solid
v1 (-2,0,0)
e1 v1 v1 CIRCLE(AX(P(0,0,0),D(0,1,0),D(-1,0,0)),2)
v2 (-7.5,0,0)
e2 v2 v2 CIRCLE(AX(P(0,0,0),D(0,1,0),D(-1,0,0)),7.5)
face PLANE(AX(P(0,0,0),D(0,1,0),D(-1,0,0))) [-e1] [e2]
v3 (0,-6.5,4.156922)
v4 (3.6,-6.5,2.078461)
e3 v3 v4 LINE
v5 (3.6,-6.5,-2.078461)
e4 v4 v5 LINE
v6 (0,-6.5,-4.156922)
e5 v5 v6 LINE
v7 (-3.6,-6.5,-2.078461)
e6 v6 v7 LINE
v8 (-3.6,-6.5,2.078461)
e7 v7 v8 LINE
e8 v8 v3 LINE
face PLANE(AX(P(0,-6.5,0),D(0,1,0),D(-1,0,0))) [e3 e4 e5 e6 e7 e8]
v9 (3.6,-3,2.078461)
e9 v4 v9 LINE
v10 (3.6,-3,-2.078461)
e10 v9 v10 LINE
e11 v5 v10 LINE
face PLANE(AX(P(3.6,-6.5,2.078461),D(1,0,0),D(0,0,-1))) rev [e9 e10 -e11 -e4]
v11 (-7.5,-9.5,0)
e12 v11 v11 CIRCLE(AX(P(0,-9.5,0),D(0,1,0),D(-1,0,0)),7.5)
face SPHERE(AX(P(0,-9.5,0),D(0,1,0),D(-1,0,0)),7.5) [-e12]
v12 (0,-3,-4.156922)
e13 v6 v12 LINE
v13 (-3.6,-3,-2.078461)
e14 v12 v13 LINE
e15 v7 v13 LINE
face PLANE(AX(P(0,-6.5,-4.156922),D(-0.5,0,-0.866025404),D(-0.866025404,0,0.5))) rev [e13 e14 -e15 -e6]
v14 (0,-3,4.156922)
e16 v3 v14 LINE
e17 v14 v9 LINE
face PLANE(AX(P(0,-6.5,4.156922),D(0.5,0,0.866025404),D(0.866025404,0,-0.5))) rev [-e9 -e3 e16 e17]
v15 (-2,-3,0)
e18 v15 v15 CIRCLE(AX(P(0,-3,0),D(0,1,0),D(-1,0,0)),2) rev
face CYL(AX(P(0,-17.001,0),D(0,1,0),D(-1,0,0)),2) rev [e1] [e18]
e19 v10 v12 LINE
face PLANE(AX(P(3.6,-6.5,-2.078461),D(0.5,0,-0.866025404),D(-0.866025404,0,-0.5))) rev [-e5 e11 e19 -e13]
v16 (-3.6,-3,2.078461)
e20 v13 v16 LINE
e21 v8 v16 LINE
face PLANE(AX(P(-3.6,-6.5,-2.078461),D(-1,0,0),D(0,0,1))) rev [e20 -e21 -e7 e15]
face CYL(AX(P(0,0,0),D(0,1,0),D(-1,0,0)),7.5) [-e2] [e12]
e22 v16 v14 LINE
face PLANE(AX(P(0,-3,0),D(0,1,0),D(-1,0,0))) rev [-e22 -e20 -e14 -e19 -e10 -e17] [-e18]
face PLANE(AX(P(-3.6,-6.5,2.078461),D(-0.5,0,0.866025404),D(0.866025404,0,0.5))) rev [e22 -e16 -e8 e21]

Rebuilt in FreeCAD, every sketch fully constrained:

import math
import FreeCAD as App
import Part
import Sketcher

V = App.Vector
Q = App.Units.Quantity


def add_polygon(sketch, points):
    """Adds a closed chain of lines whose ends are joined by coincident constraints."""
    first, n = sketch.GeometryCount, len(points)
    for a, b in zip(points, points[1:] + points[:1]):
        sketch.addGeometry(Part.LineSegment(App.Vector(*a, 0), App.Vector(*b, 0)), False)
    for i in range(n):
        sketch.addConstraint(Sketcher.Constraint("Coincident", first + i, 2, first + (i + 1) % n, 1))

doc = App.newDocument("Part")
body = doc.addObject("PartDesign::Body", "Body")

sketch1 = doc.addObject("Sketcher::SketchObject", "Sketch")
body.addObject(sketch1)
sketch1.AttachmentSupport = (doc.XY_Plane, [""])
sketch1.MapMode = "FlatFace"
sketch1.addGeometry([
    Part.LineSegment(V(0, 0, 0), V(-7.5, 0, 0)),
    Part.LineSegment(V(-7.5, 0, 0), V(-7.5, -9.5, 0)),
    Part.ArcOfCircle(Part.Circle(V(0, -9.5, 0), V(0, 0, 1), 7.5), math.radians(180), math.radians(270)),
    Part.LineSegment(V(0, -17, 0), V(0, 0, 0)),
], False)
sketch1.addConstraint([
    Sketcher.Constraint("Coincident", 0, 2, 1, 1),
    Sketcher.Constraint("Tangent", 1, 2, 2, 1),
    Sketcher.Constraint("Coincident", 2, 2, 3, 1),
    Sketcher.Constraint("Coincident", 3, 2, 0, 1),
    Sketcher.Constraint("Horizontal", 0),
    Sketcher.Constraint("Vertical", 1),
    Sketcher.Constraint("Vertical", 3),
    Sketcher.Constraint("Coincident", 3, 2, -1, 1),
    Sketcher.Constraint("PointOnObject", 2, 3, -2),
    Sketcher.Constraint("Radius", 2, 7.5),
    Sketcher.Constraint("DistanceY", 3, 1, 3, 2, 17.0),
])
revolution = doc.addObject("PartDesign::Revolution", "Revolution")
body.addObject(revolution)
revolution.Profile = sketch1
revolution.ReferenceAxis = (sketch1, ["V_Axis"])
revolution.Angle = 360

sketch2 = doc.addObject("Sketcher::SketchObject", "Sketch001")
body.addObject(sketch2)
sketch2.AttachmentSupport = (doc.XZ_Plane, [""])
sketch2.MapMode = "FlatFace"
sketch2.AttachmentOffset = App.Placement(V(0, 0, 3), App.Rotation())
add_polygon(sketch2, [(3.6, 2.078461), (3.6, -2.078461), (0, -4.156922), (-3.6, -2.078461), (-3.6, 2.078461), (0, 4.156922)])
sketch2.addConstraint([
    Sketcher.Constraint("Vertical", 0),
    Sketcher.Constraint("Vertical", 3),
    Sketcher.Constraint("Symmetric", 0, 2, 3, 2, -1, 1),
    Sketcher.Constraint("Symmetric", 1, 2, 4, 2, -1, 1),
    Sketcher.Constraint("PointOnObject", 1, 2, -2),
    Sketcher.Constraint("Parallel", 2, 5),
    Sketcher.Constraint("Horizontal", 0, 2, 2, 2),
    Sketcher.Constraint("Angle", 1, Q("-150 deg")),
    Sketcher.Constraint("DistanceX", -1, 1, 0, 2, 3.6),
    Sketcher.Constraint("DistanceY", 0, 2, 0, 1, 4.156922),
])
pocket1 = doc.addObject("PartDesign::Pocket", "Pocket")
body.addObject(pocket1)
pocket1.Profile = sketch2
pocket1.Length = 3.5
pocket1.Reversed = True

sketch3 = doc.addObject("Sketcher::SketchObject", "Sketch002")
body.addObject(sketch3)
sketch3.AttachmentSupport = (doc.XZ_Plane, [""])
sketch3.MapMode = "FlatFace"
sketch3.addGeometry(Part.Circle(V(0, 0, 0), V(0, 0, 1), 2), False)
sketch3.addConstraint([
    Sketcher.Constraint("Coincident", 0, 3, -1, 1),
    Sketcher.Constraint("Diameter", 0, 4.0),
])
pocket2 = doc.addObject("PartDesign::Pocket", "Pocket001")
body.addObject(pocket2)
pocket2.Profile = sketch3
pocket2.Type = "UpToFirst"
pocket2.Reversed = True

doc.recompute()
